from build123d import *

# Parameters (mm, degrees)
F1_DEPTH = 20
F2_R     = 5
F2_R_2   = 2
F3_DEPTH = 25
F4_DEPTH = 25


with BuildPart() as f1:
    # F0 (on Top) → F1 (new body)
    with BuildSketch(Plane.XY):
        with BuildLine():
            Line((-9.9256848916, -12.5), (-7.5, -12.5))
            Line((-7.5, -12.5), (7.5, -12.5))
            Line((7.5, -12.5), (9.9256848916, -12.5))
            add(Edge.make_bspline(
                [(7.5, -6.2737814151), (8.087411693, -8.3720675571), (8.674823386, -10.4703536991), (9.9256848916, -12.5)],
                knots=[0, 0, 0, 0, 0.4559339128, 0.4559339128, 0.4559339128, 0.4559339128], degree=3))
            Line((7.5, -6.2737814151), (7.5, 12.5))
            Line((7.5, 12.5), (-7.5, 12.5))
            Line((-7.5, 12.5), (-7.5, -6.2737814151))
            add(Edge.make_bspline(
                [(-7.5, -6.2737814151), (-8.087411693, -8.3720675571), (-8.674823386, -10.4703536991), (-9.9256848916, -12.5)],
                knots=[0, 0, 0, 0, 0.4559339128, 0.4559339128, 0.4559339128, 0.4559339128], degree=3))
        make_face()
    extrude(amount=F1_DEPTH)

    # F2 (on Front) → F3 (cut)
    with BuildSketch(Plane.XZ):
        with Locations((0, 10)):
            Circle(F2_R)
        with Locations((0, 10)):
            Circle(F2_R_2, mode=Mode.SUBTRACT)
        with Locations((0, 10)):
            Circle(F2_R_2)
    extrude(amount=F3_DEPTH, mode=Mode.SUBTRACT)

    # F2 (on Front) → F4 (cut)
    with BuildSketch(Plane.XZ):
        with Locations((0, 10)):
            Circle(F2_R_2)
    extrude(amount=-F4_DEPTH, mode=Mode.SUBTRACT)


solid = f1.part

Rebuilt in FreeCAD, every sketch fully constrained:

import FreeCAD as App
import Part
import Sketcher

V = App.Vector
Q = App.Units.Quantity

doc = App.newDocument("Part")
params = doc.addObject("Spreadsheet::Sheet", "Params")
for row, (alias, value) in enumerate([
    ("pad1_length", "20 mm"),
    ("sketch2_diameter", "10 mm"),
    ("pocket1_length", "25 mm"),
    ("sketch3_diameter", "4 mm"),
    ("pocket2_length", "25 mm"),
], start=1):
    params.set(f"A{row}", alias)
    params.set(f"B{row}", "=" + value)
    params.setAlias(f"B{row}", alias)

body = doc.addObject("PartDesign::Body", "Body")

# Sketch on XY plane
sketch1 = doc.addObject("Sketcher::SketchObject", "Sketch")
body.addObject(sketch1)
sketch1.AttachmentSupport = (doc.XY_Plane, [""])
sketch1.MapMode = "FlatFace"
sketch1.addGeometry([
    Part.LineSegment(V(-9.925685, -12.5, 0), V(9.925685, -12.5, 0)),  # 0
    Part.BSplineCurve([V(7.5, -6.273781, 0), V(8.087412, -8.372068, 0), V(8.674823, -10.470354, 0), V(9.925685, -12.5, 0)], [4, 4], [0, 0.455933913], False, 3, [1, 1, 1, 1], False),  # 1
    Part.LineSegment(V(7.5, -6.273781, 0), V(7.5, 12.5, 0)),  # 2
    Part.LineSegment(V(7.5, 12.5, 0), V(-7.5, 12.5, 0)),  # 3
    Part.LineSegment(V(-7.5, 12.5, 0), V(-7.5, -6.273781, 0)),  # 4
    Part.BSplineCurve([V(-7.5, -6.273781, 0), V(-8.087412, -8.372068, 0), V(-8.674823, -10.470354, 0), V(-9.925685, -12.5, 0)], [4, 4], [0, 0.455933913], False, 3, [1, 1, 1, 1], False),  # 5
], False)
sketch1.addConstraint([
    Sketcher.Constraint("Block", 1),
    Sketcher.Constraint("Block", 5),
    Sketcher.Constraint("Coincident", 0, 2, 1, 2),
    Sketcher.Constraint("Coincident", 1, 1, 2, 1),
    Sketcher.Constraint("Coincident", 2, 2, 3, 1),
    Sketcher.Constraint("Coincident", 3, 2, 4, 1),
    Sketcher.Constraint("Coincident", 4, 2, 5, 1),
    Sketcher.Constraint("Coincident", 5, 2, 0, 1),
    Sketcher.Constraint("Vertical", 2),
    Sketcher.Constraint("Horizontal", 3),
    Sketcher.Constraint("Vertical", 4),
    Sketcher.Constraint("DistanceY", 0, 2, 2, 2, Q("25 mm")),
])
pad1 = doc.addObject("PartDesign::Pad", "Pad")
body.addObject(pad1)
pad1.Profile = sketch1
pad1.setExpression("Length", "Params.pad1_length")

# Sketch on XZ plane
sketch2 = doc.addObject("Sketcher::SketchObject", "Sketch001")
body.addObject(sketch2)
sketch2.AttachmentSupport = (doc.XZ_Plane, [""])
sketch2.MapMode = "FlatFace"
sketch2.addGeometry(Part.Circle(V(0, 10, 0), V(0, 0, 1), 5), False)
sketch2.addConstraint([
    Sketcher.Constraint("PointOnObject", 0, 3, -2),
    Sketcher.Constraint("Diameter", 0, Q("10 mm")),
    Sketcher.Constraint("DistanceY", -1, 1, 0, 3, Q("10 mm")),
])
sketch2.setExpression("Constraints[1]", "Params.sketch2_diameter")
pocket1 = doc.addObject("PartDesign::Pocket", "Pocket")
body.addObject(pocket1)
pocket1.Profile = sketch2
pocket1.setExpression("Length", "Params.pocket1_length")
pocket1.Reversed = True

# Sketch on XZ plane
sketch3 = doc.addObject("Sketcher::SketchObject", "Sketch002")
body.addObject(sketch3)
sketch3.AttachmentSupport = (doc.XZ_Plane, [""])
sketch3.MapMode = "FlatFace"
sketch3.addGeometry(Part.Circle(V(0, 10, 0), V(0, 0, 1), 2), False)
sketch3.addConstraint([
    Sketcher.Constraint("PointOnObject", 0, 3, -2),
    Sketcher.Constraint("Diameter", 0, Q("4 mm")),
    Sketcher.Constraint("DistanceY", -1, 1, 0, 3, Q("10 mm")),
])
sketch3.setExpression("Constraints[1]", "Params.sketch3_diameter")
pocket2 = doc.addObject("PartDesign::Pocket", "Pocket001")
body.addObject(pocket2)
pocket2.Profile = sketch3
pocket2.setExpression("Length", "Params.pocket2_length")

doc.recompute()
